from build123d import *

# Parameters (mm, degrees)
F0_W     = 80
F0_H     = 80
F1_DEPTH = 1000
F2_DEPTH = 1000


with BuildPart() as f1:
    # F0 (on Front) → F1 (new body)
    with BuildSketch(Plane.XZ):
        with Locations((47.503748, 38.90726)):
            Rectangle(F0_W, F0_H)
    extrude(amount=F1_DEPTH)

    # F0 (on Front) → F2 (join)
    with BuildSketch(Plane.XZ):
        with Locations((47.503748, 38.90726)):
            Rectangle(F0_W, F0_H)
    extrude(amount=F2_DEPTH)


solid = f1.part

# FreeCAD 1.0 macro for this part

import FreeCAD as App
import Part
import Sketcher
Q = App.Units.Quantity


def add_polygon(sketch, points):
    """Adds a closed chain of lines whose ends are joined by coincident constraints."""
    first, n = sketch.GeometryCount, len(points)
    for a, b in zip(points, points[1:] + points[:1]):
        sketch.addGeometry(Part.LineSegment(App.Vector(*a, 0), App.Vector(*b, 0)), False)
    for i in range(n):
        sketch.addConstraint(Sketcher.Constraint("Coincident", first + i, 2, first + (i + 1) % n, 1))

doc = App.newDocument("Part")
body = doc.addObject("PartDesign::Body", "Body")

sketch1 = body.newObject("Sketcher::SketchObject", "Sketch")
sketch1.AttachmentSupport = (doc.getObject("XZ_Plane"), [""])
sketch1.MapMode = "FlatFace"
add_polygon(sketch1, [(8, 79), (8, -1), (88, -1), (88, 79)])
sketch1.addConstraint(Sketcher.Constraint("Vertical", 0))
sketch1.addConstraint(Sketcher.Constraint("Horizontal", 1))
sketch1.addConstraint(Sketcher.Constraint("Vertical", 2))
sketch1.addConstraint(Sketcher.Constraint("Horizontal", 3))
sketch1.addConstraint(Sketcher.Constraint("Equal", 3, 0))
sketch1.addConstraint(Sketcher.Constraint("DistanceX", 1, 1, 1, 2, Q("80 mm")))
sketch1.addConstraint(Sketcher.Constraint("DistanceY", 0, 2, -1, 1, Q("1.09274 mm")))
sketch1.addConstraint(Sketcher.Constraint("DistanceX", -1, 1, 1, 2, Q("87.503748 mm")))
pad1 = body.newObject("PartDesign::Pad", "Pad")
pad1.Profile = sketch1
pad1.Length = 1000

sketch2 = body.newObject("Sketcher::SketchObject", "Sketch001")
sketch2.AttachmentSupport = (doc.getObject("XZ_Plane"), [""])
sketch2.MapMode = "FlatFace"
add_polygon(sketch2, [(8, 79), (8, -1), (88, -1), (88, 79)])
sketch2.addConstraint(Sketcher.Constraint("Vertical", 0))
sketch2.addConstraint(Sketcher.Constraint("Horizontal", 1))
sketch2.addConstraint(Sketcher.Constraint("Vertical", 2))
sketch2.addConstraint(Sketcher.Constraint("Horizontal", 3))
sketch2.addConstraint(Sketcher.Constraint("Equal", 3, 0))
sketch2.addConstraint(Sketcher.Constraint("DistanceX", 1, 1, 1, 2, Q("80 mm")))
sketch2.addConstraint(Sketcher.Constraint("DistanceY", 0, 2, -1, 1, Q("1.09274 mm")))
sketch2.addConstraint(Sketcher.Constraint("DistanceX", -1, 1, 1, 2, Q("87.503748 mm")))
pad2 = body.newObject("PartDesign::Pad", "Pad001")
pad2.Profile = sketch2
pad2.Length = 1000

doc.recompute()
